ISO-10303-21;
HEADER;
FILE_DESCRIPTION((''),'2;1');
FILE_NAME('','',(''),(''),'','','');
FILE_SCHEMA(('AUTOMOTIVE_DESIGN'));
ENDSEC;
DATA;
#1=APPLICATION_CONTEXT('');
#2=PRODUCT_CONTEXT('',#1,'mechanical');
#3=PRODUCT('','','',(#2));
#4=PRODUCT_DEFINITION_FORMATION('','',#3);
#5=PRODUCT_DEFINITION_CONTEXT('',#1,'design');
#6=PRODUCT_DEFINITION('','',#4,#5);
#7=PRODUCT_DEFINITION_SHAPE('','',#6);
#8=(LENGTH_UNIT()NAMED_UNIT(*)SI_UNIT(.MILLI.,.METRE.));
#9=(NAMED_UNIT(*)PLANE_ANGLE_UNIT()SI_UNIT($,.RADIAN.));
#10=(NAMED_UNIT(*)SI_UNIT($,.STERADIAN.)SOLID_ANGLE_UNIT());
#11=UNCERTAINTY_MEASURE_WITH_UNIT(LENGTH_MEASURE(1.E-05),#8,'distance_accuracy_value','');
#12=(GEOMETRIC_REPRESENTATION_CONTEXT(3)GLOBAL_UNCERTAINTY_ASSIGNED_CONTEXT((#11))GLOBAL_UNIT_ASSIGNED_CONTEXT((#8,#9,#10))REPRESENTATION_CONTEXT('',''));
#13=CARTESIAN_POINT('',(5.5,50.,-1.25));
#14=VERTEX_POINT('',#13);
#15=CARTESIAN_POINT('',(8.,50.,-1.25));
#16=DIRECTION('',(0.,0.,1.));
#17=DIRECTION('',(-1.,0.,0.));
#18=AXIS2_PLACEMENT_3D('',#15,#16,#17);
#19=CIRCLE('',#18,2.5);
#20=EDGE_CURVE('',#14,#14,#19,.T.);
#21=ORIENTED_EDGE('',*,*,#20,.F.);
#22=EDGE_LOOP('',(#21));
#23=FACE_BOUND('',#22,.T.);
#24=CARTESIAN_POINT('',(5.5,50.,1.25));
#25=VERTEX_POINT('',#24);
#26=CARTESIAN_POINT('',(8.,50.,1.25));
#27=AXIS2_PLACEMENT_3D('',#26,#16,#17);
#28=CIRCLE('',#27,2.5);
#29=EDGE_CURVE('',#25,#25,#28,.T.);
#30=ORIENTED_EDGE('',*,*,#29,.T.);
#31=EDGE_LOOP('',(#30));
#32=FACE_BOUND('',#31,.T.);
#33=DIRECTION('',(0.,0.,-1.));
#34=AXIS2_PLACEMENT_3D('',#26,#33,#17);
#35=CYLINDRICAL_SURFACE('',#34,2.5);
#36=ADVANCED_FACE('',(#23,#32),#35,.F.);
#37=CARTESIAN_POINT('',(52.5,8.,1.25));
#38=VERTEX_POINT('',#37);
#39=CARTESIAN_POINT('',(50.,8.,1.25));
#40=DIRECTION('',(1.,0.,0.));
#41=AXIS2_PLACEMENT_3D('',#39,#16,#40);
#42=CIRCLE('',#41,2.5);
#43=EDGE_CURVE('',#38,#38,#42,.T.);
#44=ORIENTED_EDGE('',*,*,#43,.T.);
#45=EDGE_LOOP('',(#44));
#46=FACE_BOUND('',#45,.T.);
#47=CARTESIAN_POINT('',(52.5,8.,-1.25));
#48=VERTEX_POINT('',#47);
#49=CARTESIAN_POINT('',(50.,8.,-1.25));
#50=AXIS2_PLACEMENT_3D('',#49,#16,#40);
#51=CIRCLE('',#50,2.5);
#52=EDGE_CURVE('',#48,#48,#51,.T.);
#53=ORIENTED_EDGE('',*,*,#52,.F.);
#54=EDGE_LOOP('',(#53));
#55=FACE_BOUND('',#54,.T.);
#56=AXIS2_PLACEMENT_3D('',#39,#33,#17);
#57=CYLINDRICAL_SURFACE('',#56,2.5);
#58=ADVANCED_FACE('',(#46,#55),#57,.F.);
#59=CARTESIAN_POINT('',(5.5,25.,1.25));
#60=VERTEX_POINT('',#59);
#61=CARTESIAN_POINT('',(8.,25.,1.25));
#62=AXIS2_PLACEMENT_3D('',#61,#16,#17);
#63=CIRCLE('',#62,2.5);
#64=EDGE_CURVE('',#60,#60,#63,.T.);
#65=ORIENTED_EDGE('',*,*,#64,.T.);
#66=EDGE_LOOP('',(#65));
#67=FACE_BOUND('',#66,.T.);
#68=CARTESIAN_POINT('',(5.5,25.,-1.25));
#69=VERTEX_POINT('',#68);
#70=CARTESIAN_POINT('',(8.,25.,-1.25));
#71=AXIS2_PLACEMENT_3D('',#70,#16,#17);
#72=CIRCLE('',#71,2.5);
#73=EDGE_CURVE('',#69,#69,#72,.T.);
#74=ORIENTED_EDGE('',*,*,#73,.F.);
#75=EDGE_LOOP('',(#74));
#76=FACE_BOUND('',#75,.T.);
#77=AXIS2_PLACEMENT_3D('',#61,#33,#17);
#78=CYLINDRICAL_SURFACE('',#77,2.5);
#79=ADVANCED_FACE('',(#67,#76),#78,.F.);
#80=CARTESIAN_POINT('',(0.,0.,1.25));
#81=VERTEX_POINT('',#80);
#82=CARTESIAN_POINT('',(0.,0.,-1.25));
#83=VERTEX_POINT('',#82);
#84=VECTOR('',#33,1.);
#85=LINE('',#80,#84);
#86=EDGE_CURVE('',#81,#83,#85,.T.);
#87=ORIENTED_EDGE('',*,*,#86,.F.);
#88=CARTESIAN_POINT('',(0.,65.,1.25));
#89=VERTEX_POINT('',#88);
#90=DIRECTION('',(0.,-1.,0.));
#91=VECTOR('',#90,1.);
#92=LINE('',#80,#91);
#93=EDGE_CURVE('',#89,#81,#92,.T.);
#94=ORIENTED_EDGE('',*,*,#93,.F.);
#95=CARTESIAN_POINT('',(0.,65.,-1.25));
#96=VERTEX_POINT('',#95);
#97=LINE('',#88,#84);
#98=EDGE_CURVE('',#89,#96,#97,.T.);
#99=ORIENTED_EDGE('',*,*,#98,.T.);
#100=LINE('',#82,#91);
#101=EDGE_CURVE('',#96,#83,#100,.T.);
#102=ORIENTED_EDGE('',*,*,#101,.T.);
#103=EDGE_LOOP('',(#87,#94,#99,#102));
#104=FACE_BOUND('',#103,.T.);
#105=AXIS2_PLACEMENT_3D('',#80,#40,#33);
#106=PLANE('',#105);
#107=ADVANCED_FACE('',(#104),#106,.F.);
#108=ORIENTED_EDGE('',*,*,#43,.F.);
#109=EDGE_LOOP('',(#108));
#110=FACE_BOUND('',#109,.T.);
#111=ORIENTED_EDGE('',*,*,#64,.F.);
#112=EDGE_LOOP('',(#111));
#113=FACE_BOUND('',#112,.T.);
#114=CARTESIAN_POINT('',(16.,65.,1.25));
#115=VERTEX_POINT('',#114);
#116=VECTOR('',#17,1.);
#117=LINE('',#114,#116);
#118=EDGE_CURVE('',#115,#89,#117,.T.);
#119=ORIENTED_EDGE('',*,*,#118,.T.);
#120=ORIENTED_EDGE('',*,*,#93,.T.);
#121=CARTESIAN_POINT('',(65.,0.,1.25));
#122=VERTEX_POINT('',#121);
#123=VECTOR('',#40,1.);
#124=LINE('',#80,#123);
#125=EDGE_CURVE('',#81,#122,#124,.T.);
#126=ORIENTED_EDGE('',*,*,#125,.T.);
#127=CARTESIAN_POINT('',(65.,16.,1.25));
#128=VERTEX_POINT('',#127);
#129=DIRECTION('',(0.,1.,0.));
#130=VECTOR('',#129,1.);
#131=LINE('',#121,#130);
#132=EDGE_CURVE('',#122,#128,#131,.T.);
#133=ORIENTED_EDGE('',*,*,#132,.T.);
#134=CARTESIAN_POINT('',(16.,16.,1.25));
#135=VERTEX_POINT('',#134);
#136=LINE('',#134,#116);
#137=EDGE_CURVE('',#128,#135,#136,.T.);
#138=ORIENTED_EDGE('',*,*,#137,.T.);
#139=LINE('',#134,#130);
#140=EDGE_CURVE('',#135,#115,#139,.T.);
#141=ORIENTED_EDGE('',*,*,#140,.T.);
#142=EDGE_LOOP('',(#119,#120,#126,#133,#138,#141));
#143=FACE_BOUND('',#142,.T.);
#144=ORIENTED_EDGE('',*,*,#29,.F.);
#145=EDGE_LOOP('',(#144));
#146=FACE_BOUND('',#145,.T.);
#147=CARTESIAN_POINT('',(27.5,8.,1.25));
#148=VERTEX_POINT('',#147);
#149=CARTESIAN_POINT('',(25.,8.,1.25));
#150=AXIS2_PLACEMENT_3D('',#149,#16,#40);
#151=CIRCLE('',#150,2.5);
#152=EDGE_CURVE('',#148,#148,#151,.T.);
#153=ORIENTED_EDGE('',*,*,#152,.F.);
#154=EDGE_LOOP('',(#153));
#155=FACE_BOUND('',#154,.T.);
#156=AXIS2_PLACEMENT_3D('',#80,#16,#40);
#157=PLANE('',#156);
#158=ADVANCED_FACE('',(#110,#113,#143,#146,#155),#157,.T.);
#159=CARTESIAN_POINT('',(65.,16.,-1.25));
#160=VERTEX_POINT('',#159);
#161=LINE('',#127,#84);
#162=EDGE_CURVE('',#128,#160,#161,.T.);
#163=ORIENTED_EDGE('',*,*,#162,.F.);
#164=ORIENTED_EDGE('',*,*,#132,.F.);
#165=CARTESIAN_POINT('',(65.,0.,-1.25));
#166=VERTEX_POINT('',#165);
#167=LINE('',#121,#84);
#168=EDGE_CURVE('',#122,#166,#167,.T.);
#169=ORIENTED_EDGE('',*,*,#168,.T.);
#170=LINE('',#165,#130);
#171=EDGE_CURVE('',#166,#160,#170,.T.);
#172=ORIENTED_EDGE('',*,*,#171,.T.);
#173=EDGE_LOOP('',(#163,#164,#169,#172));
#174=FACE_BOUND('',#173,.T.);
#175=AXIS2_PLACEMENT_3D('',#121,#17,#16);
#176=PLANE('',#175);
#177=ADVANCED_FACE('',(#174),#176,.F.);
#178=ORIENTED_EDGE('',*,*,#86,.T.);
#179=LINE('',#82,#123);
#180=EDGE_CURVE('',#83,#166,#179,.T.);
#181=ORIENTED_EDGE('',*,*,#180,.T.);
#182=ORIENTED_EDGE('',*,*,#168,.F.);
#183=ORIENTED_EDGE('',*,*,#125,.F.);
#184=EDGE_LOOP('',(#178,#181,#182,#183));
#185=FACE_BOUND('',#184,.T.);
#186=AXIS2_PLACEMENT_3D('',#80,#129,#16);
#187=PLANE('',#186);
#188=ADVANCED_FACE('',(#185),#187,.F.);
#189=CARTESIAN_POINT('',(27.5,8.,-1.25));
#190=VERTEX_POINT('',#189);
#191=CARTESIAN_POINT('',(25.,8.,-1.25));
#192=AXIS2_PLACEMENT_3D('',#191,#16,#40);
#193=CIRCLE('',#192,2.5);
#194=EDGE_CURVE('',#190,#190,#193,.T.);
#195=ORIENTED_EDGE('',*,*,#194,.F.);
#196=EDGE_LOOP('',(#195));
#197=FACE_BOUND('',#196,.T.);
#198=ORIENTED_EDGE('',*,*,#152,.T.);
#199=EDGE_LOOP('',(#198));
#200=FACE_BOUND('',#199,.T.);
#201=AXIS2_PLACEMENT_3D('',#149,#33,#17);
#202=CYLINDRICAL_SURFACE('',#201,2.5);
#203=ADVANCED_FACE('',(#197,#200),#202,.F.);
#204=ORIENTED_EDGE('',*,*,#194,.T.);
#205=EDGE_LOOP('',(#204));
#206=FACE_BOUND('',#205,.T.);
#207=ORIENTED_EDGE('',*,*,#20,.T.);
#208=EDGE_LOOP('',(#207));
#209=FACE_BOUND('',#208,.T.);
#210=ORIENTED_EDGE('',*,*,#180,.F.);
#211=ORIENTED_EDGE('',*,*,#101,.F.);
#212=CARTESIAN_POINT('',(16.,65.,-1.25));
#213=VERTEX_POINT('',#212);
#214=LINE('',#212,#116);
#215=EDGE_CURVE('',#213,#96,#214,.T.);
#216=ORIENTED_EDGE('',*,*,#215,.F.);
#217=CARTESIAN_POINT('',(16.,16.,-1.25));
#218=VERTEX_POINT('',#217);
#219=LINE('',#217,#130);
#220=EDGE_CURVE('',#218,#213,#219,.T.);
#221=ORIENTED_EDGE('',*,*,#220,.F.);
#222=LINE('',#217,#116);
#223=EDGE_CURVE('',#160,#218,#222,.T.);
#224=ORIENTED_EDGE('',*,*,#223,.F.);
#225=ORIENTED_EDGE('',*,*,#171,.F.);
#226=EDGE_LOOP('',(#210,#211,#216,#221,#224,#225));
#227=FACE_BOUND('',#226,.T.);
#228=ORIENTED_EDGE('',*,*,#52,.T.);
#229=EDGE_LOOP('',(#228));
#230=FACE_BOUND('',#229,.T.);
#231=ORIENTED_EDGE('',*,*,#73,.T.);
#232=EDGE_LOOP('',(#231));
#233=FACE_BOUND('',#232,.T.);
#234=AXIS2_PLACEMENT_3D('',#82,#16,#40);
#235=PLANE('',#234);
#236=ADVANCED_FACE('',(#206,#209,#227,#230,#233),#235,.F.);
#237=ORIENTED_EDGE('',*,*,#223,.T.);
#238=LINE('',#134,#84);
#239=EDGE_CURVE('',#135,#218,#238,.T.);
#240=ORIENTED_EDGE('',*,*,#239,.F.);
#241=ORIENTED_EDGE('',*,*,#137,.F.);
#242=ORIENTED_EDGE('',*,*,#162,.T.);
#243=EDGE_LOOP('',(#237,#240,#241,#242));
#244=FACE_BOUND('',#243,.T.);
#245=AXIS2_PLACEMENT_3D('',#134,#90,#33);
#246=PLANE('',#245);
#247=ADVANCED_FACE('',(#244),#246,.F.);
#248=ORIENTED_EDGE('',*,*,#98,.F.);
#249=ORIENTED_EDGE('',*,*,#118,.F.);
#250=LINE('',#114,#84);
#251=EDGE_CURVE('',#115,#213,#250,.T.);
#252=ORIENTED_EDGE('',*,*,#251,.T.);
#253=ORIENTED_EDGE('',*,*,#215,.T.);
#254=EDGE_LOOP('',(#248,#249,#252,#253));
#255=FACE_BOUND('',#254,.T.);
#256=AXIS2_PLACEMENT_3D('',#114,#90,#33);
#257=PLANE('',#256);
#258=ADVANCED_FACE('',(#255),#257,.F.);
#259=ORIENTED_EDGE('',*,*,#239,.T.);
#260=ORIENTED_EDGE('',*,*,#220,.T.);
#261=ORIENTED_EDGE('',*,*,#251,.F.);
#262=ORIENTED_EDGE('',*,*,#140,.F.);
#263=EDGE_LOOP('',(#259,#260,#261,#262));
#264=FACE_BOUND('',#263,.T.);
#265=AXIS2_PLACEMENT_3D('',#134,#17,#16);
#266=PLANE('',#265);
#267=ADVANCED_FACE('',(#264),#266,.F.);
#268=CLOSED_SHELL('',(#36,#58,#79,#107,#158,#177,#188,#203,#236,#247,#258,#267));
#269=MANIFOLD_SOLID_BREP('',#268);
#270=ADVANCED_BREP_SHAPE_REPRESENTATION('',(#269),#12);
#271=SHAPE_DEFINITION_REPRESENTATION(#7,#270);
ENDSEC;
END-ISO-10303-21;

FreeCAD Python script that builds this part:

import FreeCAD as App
import Part
import Sketcher
from FreeCAD import Vector

doc = App.newDocument("Part")
params = doc.addObject("Spreadsheet::Sheet", "Params")
for row, (alias, value) in enumerate([
    ("sketch1_diameter", "5 mm"),
    ("sketch1_width", "65 mm"),
    ("sketch1_width2", "49 mm"),
    ("pad1_length", "2.5 mm"),
], start=1):
    params.set(f"A{row}", alias)
    params.set(f"B{row}", "=" + value)
    params.setAlias(f"B{row}", alias)

body = doc.addObject("PartDesign::Body", "Body")

# Sketch on XY plane
sketch1 = body.newObject("Sketcher::SketchObject", "Sketch")
sketch1.AttachmentSupport = (doc.getObject("XY_Plane"), [""])
sketch1.MapMode = "FlatFace"
sketch1.addGeometry(Part.LineSegment(Vector(0, 0, 0), Vector(65, 0, 0)), False)
sketch1.addGeometry(Part.LineSegment(Vector(65, 0, 0), Vector(65, 16, 0)), False)
sketch1.addGeometry(Part.LineSegment(Vector(65, 16, 0), Vector(16, 16, 0)), False)
sketch1.addGeometry(Part.LineSegment(Vector(16, 16, 0), Vector(16, 65, 0)), False)
sketch1.addGeometry(Part.LineSegment(Vector(16, 65, 0), Vector(0, 65, 0)), False)
sketch1.addGeometry(Part.LineSegment(Vector(0, 65, 0), Vector(0, 0, 0)), False)
sketch1.addGeometry(Part.Circle(Vector(25, 8, 0), Vector(0, 0, 1), 2.5), False)
sketch1.addGeometry(Part.Circle(Vector(8, 25, 0), Vector(0, 0, 1), 2.5), False)
sketch1.addGeometry(Part.Circle(Vector(50, 8, 0), Vector(0, 0, 1), 2.5), False)
sketch1.addGeometry(Part.Circle(Vector(8, 50, 0), Vector(0, 0, 1), 2.5), False)
sketch1.addConstraint(Sketcher.Constraint("Coincident", 0, 2, 1, 1))
sketch1.addConstraint(Sketcher.Constraint("Coincident", 1, 2, 2, 1))
sketch1.addConstraint(Sketcher.Constraint("Coincident", 2, 2, 3, 1))
sketch1.addConstraint(Sketcher.Constraint("Coincident", 3, 2, 4, 1))
sketch1.addConstraint(Sketcher.Constraint("Coincident", 4, 2, 5, 1))
sketch1.addConstraint(Sketcher.Constraint("Coincident", 5, 2, 0, 1))
sketch1.addConstraint(Sketcher.Constraint("Horizontal", 0))
sketch1.addConstraint(Sketcher.Constraint("Vertical", 1))
sketch1.addConstraint(Sketcher.Constraint("Horizontal", 2))
sketch1.addConstraint(Sketcher.Constraint("Vertical", 3))
sketch1.addConstraint(Sketcher.Constraint("Horizontal", 4))
sketch1.addConstraint(Sketcher.Constraint("Vertical", 5))
sketch1.addConstraint(Sketcher.Constraint("Coincident", 5, 2, -1, 1))
sketch1.addConstraint(Sketcher.Constraint("Equal", 6, 7))
sketch1.addConstraint(Sketcher.Constraint("Equal", 7, 8))
sketch1.addConstraint(Sketcher.Constraint("Equal", 8, 9))
sketch1.addConstraint(Sketcher.Constraint("Horizontal", 6, 3, 8, 3))
sketch1.addConstraint(Sketcher.Constraint("Vertical", 7, 3, 9, 3))
sketch1.addConstraint(Sketcher.Constraint("Equal", 4, 1))
sketch1.addConstraint(Sketcher.Constraint("Equal", 2, 3))
sketch1.addConstraint(Sketcher.Constraint("Diameter", 6, 5.0))
sketch1.addConstraint(Sketcher.Constraint("DistanceX", 0, 1, 0, 2, 65.0))
sketch1.addConstraint(Sketcher.Constraint("DistanceX", 2, 2, 2, 1, 49.0))
sketch1.addConstraint(Sketcher.Constraint("DistanceX", -1, 1, 6, 3, 25.0))
sketch1.addConstraint(Sketcher.Constraint("DistanceY", -1, 1, 6, 3, 8.0))
sketch1.addConstraint(Sketcher.Constraint("DistanceX", -1, 1, 7, 3, 8.0))
sketch1.addConstraint(Sketcher.Constraint("DistanceY", -1, 1, 7, 3, 25.0))
sketch1.addConstraint(Sketcher.Constraint("DistanceX", -1, 1, 8, 3, 50.0))
sketch1.addConstraint(Sketcher.Constraint("DistanceY", -1, 1, 9, 3, 50.0))
sketch1.setExpression("Constraints[20]", "Params.sketch1_diameter")
sketch1.setExpression("Constraints[21]", "Params.sketch1_width")
sketch1.setExpression("Constraints[22]", "Params.sketch1_width2")
pad1 = body.newObject("PartDesign::Pad", "Pad")
pad1.Profile = sketch1
pad1.setExpression("Length", "Params.pad1_length")
pad1.Midplane = True

doc.recompute()
